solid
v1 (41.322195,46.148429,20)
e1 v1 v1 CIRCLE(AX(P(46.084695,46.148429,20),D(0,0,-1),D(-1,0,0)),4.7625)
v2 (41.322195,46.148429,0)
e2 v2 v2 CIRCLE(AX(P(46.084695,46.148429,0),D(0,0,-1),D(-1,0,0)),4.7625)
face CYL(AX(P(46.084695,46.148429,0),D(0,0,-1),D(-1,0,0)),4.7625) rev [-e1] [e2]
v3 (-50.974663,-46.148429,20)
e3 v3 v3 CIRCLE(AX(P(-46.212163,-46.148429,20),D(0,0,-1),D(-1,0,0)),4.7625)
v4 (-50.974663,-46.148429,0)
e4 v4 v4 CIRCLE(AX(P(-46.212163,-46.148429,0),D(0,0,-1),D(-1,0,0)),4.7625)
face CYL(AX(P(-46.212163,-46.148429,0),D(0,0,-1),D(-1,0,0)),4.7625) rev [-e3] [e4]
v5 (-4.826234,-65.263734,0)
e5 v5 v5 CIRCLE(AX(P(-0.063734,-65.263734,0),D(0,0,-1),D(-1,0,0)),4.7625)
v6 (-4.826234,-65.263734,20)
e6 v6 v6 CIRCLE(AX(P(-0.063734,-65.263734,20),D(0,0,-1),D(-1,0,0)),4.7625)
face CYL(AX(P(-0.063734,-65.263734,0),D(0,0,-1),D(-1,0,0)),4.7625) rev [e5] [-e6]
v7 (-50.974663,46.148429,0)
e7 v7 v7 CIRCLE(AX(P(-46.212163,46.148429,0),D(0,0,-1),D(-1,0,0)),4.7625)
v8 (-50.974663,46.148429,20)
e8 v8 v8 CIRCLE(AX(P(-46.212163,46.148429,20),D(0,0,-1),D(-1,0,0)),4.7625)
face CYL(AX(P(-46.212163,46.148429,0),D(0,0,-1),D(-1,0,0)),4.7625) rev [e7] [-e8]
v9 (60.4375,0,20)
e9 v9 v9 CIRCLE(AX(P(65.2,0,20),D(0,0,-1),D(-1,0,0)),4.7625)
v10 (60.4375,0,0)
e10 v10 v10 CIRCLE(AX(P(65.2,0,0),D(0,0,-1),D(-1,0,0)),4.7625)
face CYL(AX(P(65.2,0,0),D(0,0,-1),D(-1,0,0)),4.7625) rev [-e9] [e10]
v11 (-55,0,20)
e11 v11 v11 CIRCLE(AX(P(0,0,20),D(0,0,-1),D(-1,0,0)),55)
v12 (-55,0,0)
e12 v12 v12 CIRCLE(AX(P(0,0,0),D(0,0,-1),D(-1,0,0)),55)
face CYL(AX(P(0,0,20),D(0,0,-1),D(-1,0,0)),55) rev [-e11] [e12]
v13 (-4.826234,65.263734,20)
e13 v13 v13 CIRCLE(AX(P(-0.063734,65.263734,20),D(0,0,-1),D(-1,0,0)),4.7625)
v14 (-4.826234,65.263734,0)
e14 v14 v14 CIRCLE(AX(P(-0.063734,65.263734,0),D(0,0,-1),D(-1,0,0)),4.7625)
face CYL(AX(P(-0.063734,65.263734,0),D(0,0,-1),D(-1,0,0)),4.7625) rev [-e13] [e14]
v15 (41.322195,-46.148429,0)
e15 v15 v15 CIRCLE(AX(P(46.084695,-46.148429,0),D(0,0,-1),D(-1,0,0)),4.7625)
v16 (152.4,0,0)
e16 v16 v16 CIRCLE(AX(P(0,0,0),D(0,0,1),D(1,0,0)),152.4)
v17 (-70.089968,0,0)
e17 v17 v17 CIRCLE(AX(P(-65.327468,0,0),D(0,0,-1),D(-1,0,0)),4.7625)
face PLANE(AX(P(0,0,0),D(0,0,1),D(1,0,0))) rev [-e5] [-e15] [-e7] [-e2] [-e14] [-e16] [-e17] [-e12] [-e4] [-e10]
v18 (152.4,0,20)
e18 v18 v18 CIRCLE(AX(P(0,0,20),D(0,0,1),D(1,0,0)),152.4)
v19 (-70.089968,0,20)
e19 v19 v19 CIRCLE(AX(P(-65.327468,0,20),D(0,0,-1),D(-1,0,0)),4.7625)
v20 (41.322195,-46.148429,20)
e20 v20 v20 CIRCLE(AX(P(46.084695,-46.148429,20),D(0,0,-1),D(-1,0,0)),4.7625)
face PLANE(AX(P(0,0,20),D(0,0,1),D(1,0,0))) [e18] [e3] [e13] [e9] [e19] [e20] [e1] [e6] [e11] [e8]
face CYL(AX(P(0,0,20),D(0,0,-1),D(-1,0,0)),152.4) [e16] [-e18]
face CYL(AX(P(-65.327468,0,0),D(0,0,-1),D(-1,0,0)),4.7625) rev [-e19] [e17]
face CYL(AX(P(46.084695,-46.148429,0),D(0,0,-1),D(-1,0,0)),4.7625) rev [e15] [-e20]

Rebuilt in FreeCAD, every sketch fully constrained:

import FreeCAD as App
import Part
import Sketcher
from FreeCAD import Vector
Q = App.Units.Quantity

doc = App.newDocument("Part")
body = doc.addObject("PartDesign::Body", "Body")

# Sketch on XY plane
sketch1 = body.newObject("Sketcher::SketchObject", "Sketch")
sketch1.AttachmentSupport = (doc.getObject("XY_Plane"), [""])
sketch1.MapMode = "FlatFace"
sketch1.addGeometry(Part.Circle(Vector(0, 0, 0), Vector(0, 0, 1), 152.4), False)
sketch1.addConstraint([
    Sketcher.Constraint("Coincident", 0, 3, -1, 1),
    Sketcher.Constraint("Diameter", 0, Q("304.8 mm")),
])
pad1 = body.newObject("PartDesign::Pad", "Pad")
pad1.Profile = sketch1
pad1.Length = 20

# Sketch on XY plane
sketch2 = body.newObject("Sketcher::SketchObject", "Sketch001")
sketch2.AttachmentSupport = (doc.getObject("XY_Plane"), [""])
sketch2.MapMode = "FlatFace"
sketch2.addGeometry(Part.Circle(Vector(65.2, 0, 0), Vector(0, 0, 1), 4.7625), False)
sketch2.addConstraint([
    Sketcher.Constraint("PointOnObject", 0, 3, -1),
    Sketcher.Constraint("Diameter", 0, Q("9.525 mm")),
    Sketcher.Constraint("DistanceX", -1, 1, 0, 3, Q("65.2 mm")),
])
doc.recompute()
hole = body.newObject("PartDesign::Hole", "Hole")
hole.Profile = sketch2
hole.ThreadType = "None"
hole.Diameter = 9.525
hole.DepthType = "ThroughAll"
hole.Reversed = True
doc.recompute()

datumline = body.newObject("PartDesign::Line", "DatumLine")
datumline.Placement = App.Placement(Vector(-0.063734, 0, 0), App.Rotation(Vector(0, 0, 1), Vector(0, 0, 1)))
polarpattern = body.newObject("PartDesign::PolarPattern", "PolarPattern")
polarpattern.Originals = [hole]
polarpattern.Axis = (datumline, [""])
polarpattern.Angle = 360
polarpattern.Occurrences = 8
body.Tip = polarpattern

# Sketch on XY plane
sketch3 = body.newObject("Sketcher::SketchObject", "Sketch002")
sketch3.AttachmentSupport = (doc.getObject("XY_Plane"), [""])
sketch3.MapMode = "FlatFace"
sketch3.addGeometry(Part.Circle(Vector(0, 0, 0), Vector(0, 0, 1), 55), False)
sketch3.addConstraint([
    Sketcher.Constraint("Coincident", 0, 3, -1, 1),
    Sketcher.Constraint("Diameter", 0, Q("110 mm")),
])
pocket1 = body.newObject("PartDesign::Pocket", "Pocket")
pocket1.Profile = sketch3
pocket1.Type = "ThroughAll"
pocket1.Reversed = True

doc.recompute()
